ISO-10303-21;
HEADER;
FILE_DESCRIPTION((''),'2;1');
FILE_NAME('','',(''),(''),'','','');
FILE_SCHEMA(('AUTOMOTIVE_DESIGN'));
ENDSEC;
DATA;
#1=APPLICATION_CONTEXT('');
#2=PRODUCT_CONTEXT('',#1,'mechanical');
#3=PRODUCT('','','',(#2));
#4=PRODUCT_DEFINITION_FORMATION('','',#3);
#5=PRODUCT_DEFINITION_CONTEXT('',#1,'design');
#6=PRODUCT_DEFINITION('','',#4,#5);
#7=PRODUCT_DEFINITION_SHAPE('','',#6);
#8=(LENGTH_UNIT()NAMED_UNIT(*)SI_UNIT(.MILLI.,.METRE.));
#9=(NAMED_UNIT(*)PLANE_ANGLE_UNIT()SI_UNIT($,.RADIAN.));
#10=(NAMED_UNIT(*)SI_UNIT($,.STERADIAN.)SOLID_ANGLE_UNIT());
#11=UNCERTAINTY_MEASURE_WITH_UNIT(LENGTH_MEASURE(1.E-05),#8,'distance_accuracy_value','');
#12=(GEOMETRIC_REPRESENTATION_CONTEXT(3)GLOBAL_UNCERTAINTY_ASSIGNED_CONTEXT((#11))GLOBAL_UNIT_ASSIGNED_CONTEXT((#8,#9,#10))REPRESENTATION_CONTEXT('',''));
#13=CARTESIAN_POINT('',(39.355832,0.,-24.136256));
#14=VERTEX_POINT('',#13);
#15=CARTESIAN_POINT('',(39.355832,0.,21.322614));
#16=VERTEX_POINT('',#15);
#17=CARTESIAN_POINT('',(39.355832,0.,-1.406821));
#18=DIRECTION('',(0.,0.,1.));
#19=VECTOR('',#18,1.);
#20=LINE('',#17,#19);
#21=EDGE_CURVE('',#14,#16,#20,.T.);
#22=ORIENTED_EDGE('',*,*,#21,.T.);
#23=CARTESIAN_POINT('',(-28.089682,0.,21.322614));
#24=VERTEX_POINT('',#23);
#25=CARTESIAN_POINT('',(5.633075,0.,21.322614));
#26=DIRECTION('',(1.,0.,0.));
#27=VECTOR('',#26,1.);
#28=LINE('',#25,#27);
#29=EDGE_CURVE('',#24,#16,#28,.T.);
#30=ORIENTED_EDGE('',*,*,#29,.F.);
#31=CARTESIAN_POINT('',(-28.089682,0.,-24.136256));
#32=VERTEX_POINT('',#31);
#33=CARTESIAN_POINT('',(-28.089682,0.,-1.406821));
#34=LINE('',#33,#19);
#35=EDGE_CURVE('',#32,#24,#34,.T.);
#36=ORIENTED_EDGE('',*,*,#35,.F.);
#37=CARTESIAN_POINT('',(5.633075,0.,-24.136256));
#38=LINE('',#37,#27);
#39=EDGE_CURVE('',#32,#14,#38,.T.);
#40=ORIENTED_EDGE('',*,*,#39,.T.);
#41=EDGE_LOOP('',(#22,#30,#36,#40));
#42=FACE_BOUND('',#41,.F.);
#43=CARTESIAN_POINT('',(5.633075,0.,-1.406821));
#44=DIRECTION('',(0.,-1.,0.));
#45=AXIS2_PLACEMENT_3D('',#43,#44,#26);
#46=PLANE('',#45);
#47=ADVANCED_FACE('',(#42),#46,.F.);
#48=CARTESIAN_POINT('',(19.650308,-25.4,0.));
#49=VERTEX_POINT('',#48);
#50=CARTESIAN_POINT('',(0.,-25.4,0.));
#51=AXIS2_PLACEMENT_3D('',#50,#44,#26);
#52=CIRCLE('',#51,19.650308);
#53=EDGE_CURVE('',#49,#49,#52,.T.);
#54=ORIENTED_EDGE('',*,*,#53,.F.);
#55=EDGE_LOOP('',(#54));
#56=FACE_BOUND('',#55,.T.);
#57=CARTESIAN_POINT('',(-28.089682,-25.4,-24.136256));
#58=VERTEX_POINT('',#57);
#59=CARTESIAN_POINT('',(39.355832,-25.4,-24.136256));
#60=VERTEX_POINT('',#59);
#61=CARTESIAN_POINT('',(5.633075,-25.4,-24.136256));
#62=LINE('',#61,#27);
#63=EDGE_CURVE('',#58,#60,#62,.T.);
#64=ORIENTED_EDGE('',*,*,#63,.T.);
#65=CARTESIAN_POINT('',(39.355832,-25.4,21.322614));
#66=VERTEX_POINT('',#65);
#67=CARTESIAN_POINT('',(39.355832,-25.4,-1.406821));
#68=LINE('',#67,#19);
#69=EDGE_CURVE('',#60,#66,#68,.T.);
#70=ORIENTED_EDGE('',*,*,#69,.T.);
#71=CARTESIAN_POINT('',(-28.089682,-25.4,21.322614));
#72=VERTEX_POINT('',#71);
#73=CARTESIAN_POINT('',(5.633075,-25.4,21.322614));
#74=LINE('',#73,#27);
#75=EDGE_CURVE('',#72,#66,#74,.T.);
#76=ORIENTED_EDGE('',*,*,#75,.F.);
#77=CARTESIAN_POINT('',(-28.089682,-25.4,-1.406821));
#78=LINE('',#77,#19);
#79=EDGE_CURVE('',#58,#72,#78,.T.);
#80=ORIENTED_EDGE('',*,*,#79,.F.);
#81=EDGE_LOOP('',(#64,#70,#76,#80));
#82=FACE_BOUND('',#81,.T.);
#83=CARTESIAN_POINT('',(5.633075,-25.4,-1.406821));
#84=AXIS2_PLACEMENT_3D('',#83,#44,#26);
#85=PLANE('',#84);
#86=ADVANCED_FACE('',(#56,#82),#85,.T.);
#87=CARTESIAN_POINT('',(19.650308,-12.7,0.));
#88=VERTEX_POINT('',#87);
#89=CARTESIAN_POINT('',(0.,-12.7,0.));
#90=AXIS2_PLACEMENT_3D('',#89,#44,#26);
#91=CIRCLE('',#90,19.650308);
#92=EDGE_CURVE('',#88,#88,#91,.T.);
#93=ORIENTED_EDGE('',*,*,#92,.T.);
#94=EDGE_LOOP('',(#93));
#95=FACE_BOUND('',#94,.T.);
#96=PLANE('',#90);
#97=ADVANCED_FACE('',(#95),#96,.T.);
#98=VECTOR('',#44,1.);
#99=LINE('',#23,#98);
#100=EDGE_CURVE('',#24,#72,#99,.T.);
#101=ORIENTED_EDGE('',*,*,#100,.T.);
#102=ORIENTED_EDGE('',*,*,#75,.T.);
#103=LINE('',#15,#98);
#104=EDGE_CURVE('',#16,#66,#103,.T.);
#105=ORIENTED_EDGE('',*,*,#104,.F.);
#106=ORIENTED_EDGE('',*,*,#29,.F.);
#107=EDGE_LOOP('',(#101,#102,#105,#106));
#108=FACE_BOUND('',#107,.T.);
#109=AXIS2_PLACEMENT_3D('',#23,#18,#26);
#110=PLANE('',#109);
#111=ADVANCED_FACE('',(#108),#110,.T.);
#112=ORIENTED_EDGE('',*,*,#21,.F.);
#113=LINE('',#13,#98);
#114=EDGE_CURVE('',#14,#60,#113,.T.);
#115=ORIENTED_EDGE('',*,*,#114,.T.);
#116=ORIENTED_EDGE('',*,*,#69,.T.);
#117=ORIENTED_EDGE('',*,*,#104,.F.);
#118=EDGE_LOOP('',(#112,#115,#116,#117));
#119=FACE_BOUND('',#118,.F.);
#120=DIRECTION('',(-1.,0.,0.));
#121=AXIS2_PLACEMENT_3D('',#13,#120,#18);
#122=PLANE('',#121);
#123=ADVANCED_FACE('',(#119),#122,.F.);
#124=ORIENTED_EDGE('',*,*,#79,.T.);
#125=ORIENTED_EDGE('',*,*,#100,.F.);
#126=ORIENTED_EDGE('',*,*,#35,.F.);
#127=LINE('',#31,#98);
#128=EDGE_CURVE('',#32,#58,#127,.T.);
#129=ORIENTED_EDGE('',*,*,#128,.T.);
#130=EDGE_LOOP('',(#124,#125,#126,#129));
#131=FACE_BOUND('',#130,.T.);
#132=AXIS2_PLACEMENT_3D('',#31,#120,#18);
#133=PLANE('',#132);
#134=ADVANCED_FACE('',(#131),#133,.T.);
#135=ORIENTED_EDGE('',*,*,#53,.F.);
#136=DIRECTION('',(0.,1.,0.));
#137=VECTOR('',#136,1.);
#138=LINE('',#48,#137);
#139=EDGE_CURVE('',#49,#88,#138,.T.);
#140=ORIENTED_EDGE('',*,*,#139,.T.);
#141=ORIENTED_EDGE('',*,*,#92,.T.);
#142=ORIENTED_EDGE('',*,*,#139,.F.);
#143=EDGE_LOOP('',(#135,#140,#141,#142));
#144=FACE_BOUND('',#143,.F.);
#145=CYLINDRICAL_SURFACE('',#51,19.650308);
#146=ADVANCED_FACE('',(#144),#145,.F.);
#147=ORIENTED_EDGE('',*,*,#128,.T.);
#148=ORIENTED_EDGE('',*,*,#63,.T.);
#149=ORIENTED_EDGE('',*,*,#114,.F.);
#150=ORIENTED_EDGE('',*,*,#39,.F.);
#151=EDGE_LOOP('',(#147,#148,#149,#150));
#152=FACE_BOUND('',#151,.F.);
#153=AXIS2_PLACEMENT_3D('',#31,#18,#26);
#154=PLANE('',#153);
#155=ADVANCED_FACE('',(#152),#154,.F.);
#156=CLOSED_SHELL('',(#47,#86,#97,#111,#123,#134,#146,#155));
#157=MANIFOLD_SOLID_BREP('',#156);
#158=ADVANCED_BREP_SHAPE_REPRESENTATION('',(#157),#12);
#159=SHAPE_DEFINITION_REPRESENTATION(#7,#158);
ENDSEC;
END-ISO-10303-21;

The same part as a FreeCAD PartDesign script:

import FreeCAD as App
import Part
import Sketcher

V = App.Vector


def add_polygon(sketch, points):
    """Adds a closed chain of lines whose ends are joined by coincident constraints."""
    first, n = sketch.GeometryCount, len(points)
    for a, b in zip(points, points[1:] + points[:1]):
        sketch.addGeometry(Part.LineSegment(App.Vector(*a, 0), App.Vector(*b, 0)), False)
    for i in range(n):
        sketch.addConstraint(Sketcher.Constraint("Coincident", first + i, 2, first + (i + 1) % n, 1))

doc = App.newDocument("Part")
params = doc.addObject("Spreadsheet::Sheet", "Params")
for row, (alias, value) in enumerate([
    ("pad1_length", "1 in"),
    ("pocket1_length", "0.5 in"),
], start=1):
    params.set(f"A{row}", alias)
    params.set(f"B{row}", "=" + value)
    params.setAlias(f"B{row}", alias)

body = doc.addObject("PartDesign::Body", "Body")

# Sketch on XZ plane
sketch1 = doc.addObject("Sketcher::SketchObject", "Sketch")
body.addObject(sketch1)
sketch1.AttachmentSupport = (doc.XZ_Plane, [""])
sketch1.MapMode = "FlatFace"
add_polygon(sketch1, [(-28, 21), (-28, -24), (39, -24), (39, 21)])  # lines 0-3
sketch1.addConstraint(Sketcher.Constraint("Vertical", 0))
sketch1.addConstraint(Sketcher.Constraint("Horizontal", 1))
sketch1.addConstraint(Sketcher.Constraint("Vertical", 2))
sketch1.addConstraint(Sketcher.Constraint("Horizontal", 3))
sketch1.addConstraint(Sketcher.Constraint("DistanceY", 0, 2, 0, 1, 45.45887))
sketch1.addConstraint(Sketcher.Constraint("DistanceX", 1, 1, 1, 2, 67.445515))
sketch1.addConstraint(Sketcher.Constraint("DistanceX", 0, 2, -1, 1, 28.089682))
sketch1.addConstraint(Sketcher.Constraint("DistanceY", 0, 2, -1, 1, 24.136256))
pad1 = doc.addObject("PartDesign::Pad", "Pad")
body.addObject(pad1)
pad1.Profile = sketch1
pad1.setExpression("Length", "Params.pad1_length")

# Sketch on XZ plane
sketch2 = doc.addObject("Sketcher::SketchObject", "Sketch001")
body.addObject(sketch2)
sketch2.AttachmentSupport = (doc.XZ_Plane, [""])
sketch2.MapMode = "FlatFace"
sketch2.AttachmentOffset = App.Placement(V(0, 0, 1 * 25.4), App.Rotation())
sketch2.addGeometry(Part.Circle(V(0, 0, 0), V(0, 0, 1), 20), False)
sketch2.addConstraint(Sketcher.Constraint("Coincident", 0, 3, -1, 1))
sketch2.addConstraint(Sketcher.Constraint("Diameter", 0, 39.300616))
pocket1 = doc.addObject("PartDesign::Pocket", "Pocket")
body.addObject(pocket1)
pocket1.Profile = sketch2
pocket1.setExpression("Length", "Params.pocket1_length")

doc.recompute()
